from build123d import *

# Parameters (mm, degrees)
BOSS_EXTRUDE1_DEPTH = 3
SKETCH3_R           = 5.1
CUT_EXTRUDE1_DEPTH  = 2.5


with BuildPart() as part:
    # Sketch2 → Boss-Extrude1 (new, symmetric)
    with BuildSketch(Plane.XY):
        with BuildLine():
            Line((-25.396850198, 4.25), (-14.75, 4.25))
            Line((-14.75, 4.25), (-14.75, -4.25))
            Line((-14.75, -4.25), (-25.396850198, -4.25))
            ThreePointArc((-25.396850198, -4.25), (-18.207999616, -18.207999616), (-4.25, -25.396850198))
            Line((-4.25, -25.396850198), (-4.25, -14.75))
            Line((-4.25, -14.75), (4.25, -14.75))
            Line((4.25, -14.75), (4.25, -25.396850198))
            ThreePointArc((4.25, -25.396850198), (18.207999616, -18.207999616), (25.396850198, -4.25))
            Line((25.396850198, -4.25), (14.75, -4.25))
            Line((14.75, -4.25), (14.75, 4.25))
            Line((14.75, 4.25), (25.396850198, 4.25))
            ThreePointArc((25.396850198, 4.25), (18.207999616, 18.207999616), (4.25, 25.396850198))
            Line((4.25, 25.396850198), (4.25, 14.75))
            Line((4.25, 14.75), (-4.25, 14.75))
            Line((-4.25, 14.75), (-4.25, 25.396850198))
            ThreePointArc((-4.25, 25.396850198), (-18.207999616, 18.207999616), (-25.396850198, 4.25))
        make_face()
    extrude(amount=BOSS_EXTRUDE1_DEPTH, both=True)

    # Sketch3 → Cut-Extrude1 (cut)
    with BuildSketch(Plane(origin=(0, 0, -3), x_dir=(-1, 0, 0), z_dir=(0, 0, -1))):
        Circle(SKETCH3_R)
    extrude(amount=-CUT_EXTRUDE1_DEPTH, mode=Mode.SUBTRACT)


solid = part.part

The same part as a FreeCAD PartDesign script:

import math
import FreeCAD as App
import Part
import Sketcher
from FreeCAD import Vector

doc = App.newDocument("Part")
params = doc.addObject("Spreadsheet::Sheet", "Params")
for row, (alias, value) in enumerate([
    ("sketch1_radius", "25.75 mm"),
    ("sketch1_width", "8.5 mm"),
    ("pad1_length", "6 mm"),
    ("sketch2_diameter", "10.2 mm"),
    ("pocket1_length", "2.5 mm"),
], start=1):
    params.set(f"A{row}", alias)
    params.set(f"B{row}", "=" + value)
    params.setAlias(f"B{row}", alias)

body = doc.addObject("PartDesign::Body", "Body")

# Sketch on XY plane
sketch1 = doc.addObject("Sketcher::SketchObject", "Sketch")
body.addObject(sketch1)
sketch1.AttachmentSupport = (doc.XY_Plane, [""])
sketch1.MapMode = "FlatFace"
sketch1.addGeometry([
    Part.LineSegment(Vector(-25, 4, 0), Vector(-15, 4, 0)),  # 0
    Part.LineSegment(Vector(-15, 4, 0), Vector(-15, -4, 0)),  # 1
    Part.LineSegment(Vector(-15, -4, 0), Vector(-25, -4, 0)),  # 2
    Part.ArcOfCircle(Part.Circle(Vector(0, 0, 0), Vector(0, 0, 1), 26), math.radians(-170), math.radians(-100)),  # 3
    Part.LineSegment(Vector(-4, -25, 0), Vector(-4, -15, 0)),  # 4
    Part.LineSegment(Vector(-4, -15, 0), Vector(4, -15, 0)),  # 5
    Part.LineSegment(Vector(4, -15, 0), Vector(4, -25, 0)),  # 6
    Part.ArcOfCircle(Part.Circle(Vector(0, 0, 0), Vector(0, 0, 1), 26), math.radians(-80), math.radians(-10)),  # 7
    Part.LineSegment(Vector(25, -4, 0), Vector(15, -4, 0)),  # 8
    Part.LineSegment(Vector(15, -4, 0), Vector(15, 4, 0)),  # 9
    Part.LineSegment(Vector(15, 4, 0), Vector(25, 4, 0)),  # 10
    Part.ArcOfCircle(Part.Circle(Vector(0, 0, 0), Vector(0, 0, 1), 26), math.radians(10), math.radians(80)),  # 11
    Part.LineSegment(Vector(4, 25, 0), Vector(4, 15, 0)),  # 12
    Part.LineSegment(Vector(4, 15, 0), Vector(-4, 15, 0)),  # 13
    Part.LineSegment(Vector(-4, 15, 0), Vector(-4, 25, 0)),  # 14
    Part.ArcOfCircle(Part.Circle(Vector(0, 0, 0), Vector(0, 0, 1), 26), math.radians(100), math.radians(170)),  # 15
], False)
sketch1.addConstraint([
    Sketcher.Constraint("Coincident", 0, 2, 1, 1),
    Sketcher.Constraint("Coincident", 1, 2, 2, 1),
    Sketcher.Constraint("Coincident", 2, 2, 3, 1),
    Sketcher.Constraint("Coincident", 3, 2, 4, 1),
    Sketcher.Constraint("Coincident", 4, 2, 5, 1),
    Sketcher.Constraint("Coincident", 5, 2, 6, 1),
    Sketcher.Constraint("Coincident", 6, 2, 7, 1),
    Sketcher.Constraint("Coincident", 7, 2, 8, 1),
    Sketcher.Constraint("Coincident", 8, 2, 9, 1),
    Sketcher.Constraint("Coincident", 9, 2, 10, 1),
    Sketcher.Constraint("Coincident", 10, 2, 11, 1),
    Sketcher.Constraint("Coincident", 11, 2, 12, 1),
    Sketcher.Constraint("Coincident", 12, 2, 13, 1),
    Sketcher.Constraint("Coincident", 13, 2, 14, 1),
    Sketcher.Constraint("Coincident", 14, 2, 15, 1),
    Sketcher.Constraint("Coincident", 15, 2, 0, 1),
    Sketcher.Constraint("Horizontal", 0),
    Sketcher.Constraint("Vertical", 1),
    Sketcher.Constraint("Horizontal", 2),
    Sketcher.Constraint("Vertical", 4),
    Sketcher.Constraint("Horizontal", 5),
    Sketcher.Constraint("Vertical", 6),
    Sketcher.Constraint("Horizontal", 8),
    Sketcher.Constraint("Vertical", 9),
    Sketcher.Constraint("Horizontal", 10),
    Sketcher.Constraint("Vertical", 12),
    Sketcher.Constraint("Horizontal", 13),
    Sketcher.Constraint("Vertical", 14),
    Sketcher.Constraint("Coincident", 3, 3, -1, 1),
    Sketcher.Constraint("Coincident", 7, 3, -1, 1),
    Sketcher.Constraint("Coincident", 11, 3, -1, 1),
    Sketcher.Constraint("Coincident", 15, 3, -1, 1),
    Sketcher.Constraint("Equal", 3, 7),
    Sketcher.Constraint("Equal", 7, 11),
    Sketcher.Constraint("Equal", 11, 15),
    Sketcher.Constraint("Symmetric", 0, 2, 8, 2, -1, 1),
    Sketcher.Constraint("Symmetric", 4, 2, 12, 2, -1, 1),
    Sketcher.Constraint("Horizontal", 3, 2, 6, 2),
    Sketcher.Constraint("Horizontal", 2, 2, 7, 2),
    Sketcher.Constraint("Horizontal", 0, 2, 9, 2),
    Sketcher.Constraint("Horizontal", 11, 2, 14, 2),
    Sketcher.Constraint("Equal", 13, 1),
    Sketcher.Constraint("Equal", 10, 4),
    Sketcher.Constraint("Radius", 3, 25.75),
    Sketcher.Constraint("DistanceX", 5, 1, 5, 2, 8.5),
    Sketcher.Constraint("DistanceX", 1, 2, 3, 2, 10.5),
])
sketch1.setExpression("Constraints[43]", "Params.sketch1_radius")
sketch1.setExpression("Constraints[44]", "Params.sketch1_width")
pad1 = doc.addObject("PartDesign::Pad", "Pad")
body.addObject(pad1)
pad1.Profile = sketch1
pad1.setExpression("Length", "Params.pad1_length")
pad1.Midplane = True

# Sketch on XY plane
sketch2 = doc.addObject("Sketcher::SketchObject", "Sketch001")
body.addObject(sketch2)
sketch2.AttachmentSupport = (doc.XY_Plane, [""])
sketch2.MapMode = "FlatFace"
sketch2.AttachmentOffset = App.Placement(Vector(0, 0, -3), App.Rotation())
sketch2.addGeometry(Part.Circle(Vector(0, 0, 0), Vector(0, 0, 1), 5), False)
sketch2.addConstraint([
    Sketcher.Constraint("Coincident", 0, 3, -1, 1),
    Sketcher.Constraint("Diameter", 0, 10.2),
])
sketch2.setExpression("Constraints[1]", "Params.sketch2_diameter")
pocket1 = doc.addObject("PartDesign::Pocket", "Pocket")
body.addObject(pocket1)
pocket1.Profile = sketch2
pocket1.setExpression("Length", "Params.pocket1_length")
pocket1.Reversed = True

doc.recompute()
